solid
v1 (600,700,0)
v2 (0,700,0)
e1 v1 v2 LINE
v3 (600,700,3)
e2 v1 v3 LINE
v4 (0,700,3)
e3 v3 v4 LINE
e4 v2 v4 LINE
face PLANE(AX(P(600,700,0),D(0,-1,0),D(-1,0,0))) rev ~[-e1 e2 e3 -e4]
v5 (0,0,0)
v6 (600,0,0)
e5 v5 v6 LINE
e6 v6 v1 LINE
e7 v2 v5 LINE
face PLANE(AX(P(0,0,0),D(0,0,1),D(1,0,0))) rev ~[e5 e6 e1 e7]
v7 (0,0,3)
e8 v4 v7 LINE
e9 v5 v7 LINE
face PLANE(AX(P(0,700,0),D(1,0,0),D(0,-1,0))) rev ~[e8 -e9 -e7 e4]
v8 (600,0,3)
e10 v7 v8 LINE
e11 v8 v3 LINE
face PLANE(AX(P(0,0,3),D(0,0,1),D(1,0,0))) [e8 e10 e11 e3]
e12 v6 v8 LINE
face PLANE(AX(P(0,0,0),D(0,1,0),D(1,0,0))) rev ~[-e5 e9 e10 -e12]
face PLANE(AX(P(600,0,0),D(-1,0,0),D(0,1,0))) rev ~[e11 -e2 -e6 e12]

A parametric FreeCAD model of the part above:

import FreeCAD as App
import Part
import Sketcher
from FreeCAD import Vector
Q = App.Units.Quantity


def add_polygon(sketch, points):
    """Adds a closed chain of lines whose ends are joined by coincident constraints."""
    first, n = sketch.GeometryCount, len(points)
    for a, b in zip(points, points[1:] + points[:1]):
        sketch.addGeometry(Part.LineSegment(App.Vector(*a, 0), App.Vector(*b, 0)), False)
    for i in range(n):
        sketch.addConstraint(Sketcher.Constraint("Coincident", first + i, 2, first + (i + 1) % n, 1))

doc = App.newDocument("Part")
body = doc.addObject("PartDesign::Body", "Body")

sketch1 = doc.addObject("Sketcher::SketchObject", "Sketch")
body.addObject(sketch1)
sketch1.AttachmentSupport = (doc.XY_Plane, [""])
sketch1.MapMode = "FlatFace"
add_polygon(sketch1, [(0, 700), (0, 0), (600, 0), (600, 700)])
sketch1.addConstraint(Sketcher.Constraint("Vertical", 0))
sketch1.addConstraint(Sketcher.Constraint("Horizontal", 1))
sketch1.addConstraint(Sketcher.Constraint("Vertical", 2))
sketch1.addConstraint(Sketcher.Constraint("Horizontal", 3))
sketch1.addConstraint(Sketcher.Constraint("Coincident", 0, 2, -1, 1))
sketch1.addConstraint(Sketcher.Constraint("DistanceX", 1, 1, 1, 2, Q("600 mm")))
sketch1.addConstraint(Sketcher.Constraint("DistanceY", 0, 2, 0, 1, Q("700 mm")))
pad1 = doc.addObject("PartDesign::Pad", "Pad")
body.addObject(pad1)
pad1.Profile = sketch1
pad1.Length = 3

doc.recompute()
